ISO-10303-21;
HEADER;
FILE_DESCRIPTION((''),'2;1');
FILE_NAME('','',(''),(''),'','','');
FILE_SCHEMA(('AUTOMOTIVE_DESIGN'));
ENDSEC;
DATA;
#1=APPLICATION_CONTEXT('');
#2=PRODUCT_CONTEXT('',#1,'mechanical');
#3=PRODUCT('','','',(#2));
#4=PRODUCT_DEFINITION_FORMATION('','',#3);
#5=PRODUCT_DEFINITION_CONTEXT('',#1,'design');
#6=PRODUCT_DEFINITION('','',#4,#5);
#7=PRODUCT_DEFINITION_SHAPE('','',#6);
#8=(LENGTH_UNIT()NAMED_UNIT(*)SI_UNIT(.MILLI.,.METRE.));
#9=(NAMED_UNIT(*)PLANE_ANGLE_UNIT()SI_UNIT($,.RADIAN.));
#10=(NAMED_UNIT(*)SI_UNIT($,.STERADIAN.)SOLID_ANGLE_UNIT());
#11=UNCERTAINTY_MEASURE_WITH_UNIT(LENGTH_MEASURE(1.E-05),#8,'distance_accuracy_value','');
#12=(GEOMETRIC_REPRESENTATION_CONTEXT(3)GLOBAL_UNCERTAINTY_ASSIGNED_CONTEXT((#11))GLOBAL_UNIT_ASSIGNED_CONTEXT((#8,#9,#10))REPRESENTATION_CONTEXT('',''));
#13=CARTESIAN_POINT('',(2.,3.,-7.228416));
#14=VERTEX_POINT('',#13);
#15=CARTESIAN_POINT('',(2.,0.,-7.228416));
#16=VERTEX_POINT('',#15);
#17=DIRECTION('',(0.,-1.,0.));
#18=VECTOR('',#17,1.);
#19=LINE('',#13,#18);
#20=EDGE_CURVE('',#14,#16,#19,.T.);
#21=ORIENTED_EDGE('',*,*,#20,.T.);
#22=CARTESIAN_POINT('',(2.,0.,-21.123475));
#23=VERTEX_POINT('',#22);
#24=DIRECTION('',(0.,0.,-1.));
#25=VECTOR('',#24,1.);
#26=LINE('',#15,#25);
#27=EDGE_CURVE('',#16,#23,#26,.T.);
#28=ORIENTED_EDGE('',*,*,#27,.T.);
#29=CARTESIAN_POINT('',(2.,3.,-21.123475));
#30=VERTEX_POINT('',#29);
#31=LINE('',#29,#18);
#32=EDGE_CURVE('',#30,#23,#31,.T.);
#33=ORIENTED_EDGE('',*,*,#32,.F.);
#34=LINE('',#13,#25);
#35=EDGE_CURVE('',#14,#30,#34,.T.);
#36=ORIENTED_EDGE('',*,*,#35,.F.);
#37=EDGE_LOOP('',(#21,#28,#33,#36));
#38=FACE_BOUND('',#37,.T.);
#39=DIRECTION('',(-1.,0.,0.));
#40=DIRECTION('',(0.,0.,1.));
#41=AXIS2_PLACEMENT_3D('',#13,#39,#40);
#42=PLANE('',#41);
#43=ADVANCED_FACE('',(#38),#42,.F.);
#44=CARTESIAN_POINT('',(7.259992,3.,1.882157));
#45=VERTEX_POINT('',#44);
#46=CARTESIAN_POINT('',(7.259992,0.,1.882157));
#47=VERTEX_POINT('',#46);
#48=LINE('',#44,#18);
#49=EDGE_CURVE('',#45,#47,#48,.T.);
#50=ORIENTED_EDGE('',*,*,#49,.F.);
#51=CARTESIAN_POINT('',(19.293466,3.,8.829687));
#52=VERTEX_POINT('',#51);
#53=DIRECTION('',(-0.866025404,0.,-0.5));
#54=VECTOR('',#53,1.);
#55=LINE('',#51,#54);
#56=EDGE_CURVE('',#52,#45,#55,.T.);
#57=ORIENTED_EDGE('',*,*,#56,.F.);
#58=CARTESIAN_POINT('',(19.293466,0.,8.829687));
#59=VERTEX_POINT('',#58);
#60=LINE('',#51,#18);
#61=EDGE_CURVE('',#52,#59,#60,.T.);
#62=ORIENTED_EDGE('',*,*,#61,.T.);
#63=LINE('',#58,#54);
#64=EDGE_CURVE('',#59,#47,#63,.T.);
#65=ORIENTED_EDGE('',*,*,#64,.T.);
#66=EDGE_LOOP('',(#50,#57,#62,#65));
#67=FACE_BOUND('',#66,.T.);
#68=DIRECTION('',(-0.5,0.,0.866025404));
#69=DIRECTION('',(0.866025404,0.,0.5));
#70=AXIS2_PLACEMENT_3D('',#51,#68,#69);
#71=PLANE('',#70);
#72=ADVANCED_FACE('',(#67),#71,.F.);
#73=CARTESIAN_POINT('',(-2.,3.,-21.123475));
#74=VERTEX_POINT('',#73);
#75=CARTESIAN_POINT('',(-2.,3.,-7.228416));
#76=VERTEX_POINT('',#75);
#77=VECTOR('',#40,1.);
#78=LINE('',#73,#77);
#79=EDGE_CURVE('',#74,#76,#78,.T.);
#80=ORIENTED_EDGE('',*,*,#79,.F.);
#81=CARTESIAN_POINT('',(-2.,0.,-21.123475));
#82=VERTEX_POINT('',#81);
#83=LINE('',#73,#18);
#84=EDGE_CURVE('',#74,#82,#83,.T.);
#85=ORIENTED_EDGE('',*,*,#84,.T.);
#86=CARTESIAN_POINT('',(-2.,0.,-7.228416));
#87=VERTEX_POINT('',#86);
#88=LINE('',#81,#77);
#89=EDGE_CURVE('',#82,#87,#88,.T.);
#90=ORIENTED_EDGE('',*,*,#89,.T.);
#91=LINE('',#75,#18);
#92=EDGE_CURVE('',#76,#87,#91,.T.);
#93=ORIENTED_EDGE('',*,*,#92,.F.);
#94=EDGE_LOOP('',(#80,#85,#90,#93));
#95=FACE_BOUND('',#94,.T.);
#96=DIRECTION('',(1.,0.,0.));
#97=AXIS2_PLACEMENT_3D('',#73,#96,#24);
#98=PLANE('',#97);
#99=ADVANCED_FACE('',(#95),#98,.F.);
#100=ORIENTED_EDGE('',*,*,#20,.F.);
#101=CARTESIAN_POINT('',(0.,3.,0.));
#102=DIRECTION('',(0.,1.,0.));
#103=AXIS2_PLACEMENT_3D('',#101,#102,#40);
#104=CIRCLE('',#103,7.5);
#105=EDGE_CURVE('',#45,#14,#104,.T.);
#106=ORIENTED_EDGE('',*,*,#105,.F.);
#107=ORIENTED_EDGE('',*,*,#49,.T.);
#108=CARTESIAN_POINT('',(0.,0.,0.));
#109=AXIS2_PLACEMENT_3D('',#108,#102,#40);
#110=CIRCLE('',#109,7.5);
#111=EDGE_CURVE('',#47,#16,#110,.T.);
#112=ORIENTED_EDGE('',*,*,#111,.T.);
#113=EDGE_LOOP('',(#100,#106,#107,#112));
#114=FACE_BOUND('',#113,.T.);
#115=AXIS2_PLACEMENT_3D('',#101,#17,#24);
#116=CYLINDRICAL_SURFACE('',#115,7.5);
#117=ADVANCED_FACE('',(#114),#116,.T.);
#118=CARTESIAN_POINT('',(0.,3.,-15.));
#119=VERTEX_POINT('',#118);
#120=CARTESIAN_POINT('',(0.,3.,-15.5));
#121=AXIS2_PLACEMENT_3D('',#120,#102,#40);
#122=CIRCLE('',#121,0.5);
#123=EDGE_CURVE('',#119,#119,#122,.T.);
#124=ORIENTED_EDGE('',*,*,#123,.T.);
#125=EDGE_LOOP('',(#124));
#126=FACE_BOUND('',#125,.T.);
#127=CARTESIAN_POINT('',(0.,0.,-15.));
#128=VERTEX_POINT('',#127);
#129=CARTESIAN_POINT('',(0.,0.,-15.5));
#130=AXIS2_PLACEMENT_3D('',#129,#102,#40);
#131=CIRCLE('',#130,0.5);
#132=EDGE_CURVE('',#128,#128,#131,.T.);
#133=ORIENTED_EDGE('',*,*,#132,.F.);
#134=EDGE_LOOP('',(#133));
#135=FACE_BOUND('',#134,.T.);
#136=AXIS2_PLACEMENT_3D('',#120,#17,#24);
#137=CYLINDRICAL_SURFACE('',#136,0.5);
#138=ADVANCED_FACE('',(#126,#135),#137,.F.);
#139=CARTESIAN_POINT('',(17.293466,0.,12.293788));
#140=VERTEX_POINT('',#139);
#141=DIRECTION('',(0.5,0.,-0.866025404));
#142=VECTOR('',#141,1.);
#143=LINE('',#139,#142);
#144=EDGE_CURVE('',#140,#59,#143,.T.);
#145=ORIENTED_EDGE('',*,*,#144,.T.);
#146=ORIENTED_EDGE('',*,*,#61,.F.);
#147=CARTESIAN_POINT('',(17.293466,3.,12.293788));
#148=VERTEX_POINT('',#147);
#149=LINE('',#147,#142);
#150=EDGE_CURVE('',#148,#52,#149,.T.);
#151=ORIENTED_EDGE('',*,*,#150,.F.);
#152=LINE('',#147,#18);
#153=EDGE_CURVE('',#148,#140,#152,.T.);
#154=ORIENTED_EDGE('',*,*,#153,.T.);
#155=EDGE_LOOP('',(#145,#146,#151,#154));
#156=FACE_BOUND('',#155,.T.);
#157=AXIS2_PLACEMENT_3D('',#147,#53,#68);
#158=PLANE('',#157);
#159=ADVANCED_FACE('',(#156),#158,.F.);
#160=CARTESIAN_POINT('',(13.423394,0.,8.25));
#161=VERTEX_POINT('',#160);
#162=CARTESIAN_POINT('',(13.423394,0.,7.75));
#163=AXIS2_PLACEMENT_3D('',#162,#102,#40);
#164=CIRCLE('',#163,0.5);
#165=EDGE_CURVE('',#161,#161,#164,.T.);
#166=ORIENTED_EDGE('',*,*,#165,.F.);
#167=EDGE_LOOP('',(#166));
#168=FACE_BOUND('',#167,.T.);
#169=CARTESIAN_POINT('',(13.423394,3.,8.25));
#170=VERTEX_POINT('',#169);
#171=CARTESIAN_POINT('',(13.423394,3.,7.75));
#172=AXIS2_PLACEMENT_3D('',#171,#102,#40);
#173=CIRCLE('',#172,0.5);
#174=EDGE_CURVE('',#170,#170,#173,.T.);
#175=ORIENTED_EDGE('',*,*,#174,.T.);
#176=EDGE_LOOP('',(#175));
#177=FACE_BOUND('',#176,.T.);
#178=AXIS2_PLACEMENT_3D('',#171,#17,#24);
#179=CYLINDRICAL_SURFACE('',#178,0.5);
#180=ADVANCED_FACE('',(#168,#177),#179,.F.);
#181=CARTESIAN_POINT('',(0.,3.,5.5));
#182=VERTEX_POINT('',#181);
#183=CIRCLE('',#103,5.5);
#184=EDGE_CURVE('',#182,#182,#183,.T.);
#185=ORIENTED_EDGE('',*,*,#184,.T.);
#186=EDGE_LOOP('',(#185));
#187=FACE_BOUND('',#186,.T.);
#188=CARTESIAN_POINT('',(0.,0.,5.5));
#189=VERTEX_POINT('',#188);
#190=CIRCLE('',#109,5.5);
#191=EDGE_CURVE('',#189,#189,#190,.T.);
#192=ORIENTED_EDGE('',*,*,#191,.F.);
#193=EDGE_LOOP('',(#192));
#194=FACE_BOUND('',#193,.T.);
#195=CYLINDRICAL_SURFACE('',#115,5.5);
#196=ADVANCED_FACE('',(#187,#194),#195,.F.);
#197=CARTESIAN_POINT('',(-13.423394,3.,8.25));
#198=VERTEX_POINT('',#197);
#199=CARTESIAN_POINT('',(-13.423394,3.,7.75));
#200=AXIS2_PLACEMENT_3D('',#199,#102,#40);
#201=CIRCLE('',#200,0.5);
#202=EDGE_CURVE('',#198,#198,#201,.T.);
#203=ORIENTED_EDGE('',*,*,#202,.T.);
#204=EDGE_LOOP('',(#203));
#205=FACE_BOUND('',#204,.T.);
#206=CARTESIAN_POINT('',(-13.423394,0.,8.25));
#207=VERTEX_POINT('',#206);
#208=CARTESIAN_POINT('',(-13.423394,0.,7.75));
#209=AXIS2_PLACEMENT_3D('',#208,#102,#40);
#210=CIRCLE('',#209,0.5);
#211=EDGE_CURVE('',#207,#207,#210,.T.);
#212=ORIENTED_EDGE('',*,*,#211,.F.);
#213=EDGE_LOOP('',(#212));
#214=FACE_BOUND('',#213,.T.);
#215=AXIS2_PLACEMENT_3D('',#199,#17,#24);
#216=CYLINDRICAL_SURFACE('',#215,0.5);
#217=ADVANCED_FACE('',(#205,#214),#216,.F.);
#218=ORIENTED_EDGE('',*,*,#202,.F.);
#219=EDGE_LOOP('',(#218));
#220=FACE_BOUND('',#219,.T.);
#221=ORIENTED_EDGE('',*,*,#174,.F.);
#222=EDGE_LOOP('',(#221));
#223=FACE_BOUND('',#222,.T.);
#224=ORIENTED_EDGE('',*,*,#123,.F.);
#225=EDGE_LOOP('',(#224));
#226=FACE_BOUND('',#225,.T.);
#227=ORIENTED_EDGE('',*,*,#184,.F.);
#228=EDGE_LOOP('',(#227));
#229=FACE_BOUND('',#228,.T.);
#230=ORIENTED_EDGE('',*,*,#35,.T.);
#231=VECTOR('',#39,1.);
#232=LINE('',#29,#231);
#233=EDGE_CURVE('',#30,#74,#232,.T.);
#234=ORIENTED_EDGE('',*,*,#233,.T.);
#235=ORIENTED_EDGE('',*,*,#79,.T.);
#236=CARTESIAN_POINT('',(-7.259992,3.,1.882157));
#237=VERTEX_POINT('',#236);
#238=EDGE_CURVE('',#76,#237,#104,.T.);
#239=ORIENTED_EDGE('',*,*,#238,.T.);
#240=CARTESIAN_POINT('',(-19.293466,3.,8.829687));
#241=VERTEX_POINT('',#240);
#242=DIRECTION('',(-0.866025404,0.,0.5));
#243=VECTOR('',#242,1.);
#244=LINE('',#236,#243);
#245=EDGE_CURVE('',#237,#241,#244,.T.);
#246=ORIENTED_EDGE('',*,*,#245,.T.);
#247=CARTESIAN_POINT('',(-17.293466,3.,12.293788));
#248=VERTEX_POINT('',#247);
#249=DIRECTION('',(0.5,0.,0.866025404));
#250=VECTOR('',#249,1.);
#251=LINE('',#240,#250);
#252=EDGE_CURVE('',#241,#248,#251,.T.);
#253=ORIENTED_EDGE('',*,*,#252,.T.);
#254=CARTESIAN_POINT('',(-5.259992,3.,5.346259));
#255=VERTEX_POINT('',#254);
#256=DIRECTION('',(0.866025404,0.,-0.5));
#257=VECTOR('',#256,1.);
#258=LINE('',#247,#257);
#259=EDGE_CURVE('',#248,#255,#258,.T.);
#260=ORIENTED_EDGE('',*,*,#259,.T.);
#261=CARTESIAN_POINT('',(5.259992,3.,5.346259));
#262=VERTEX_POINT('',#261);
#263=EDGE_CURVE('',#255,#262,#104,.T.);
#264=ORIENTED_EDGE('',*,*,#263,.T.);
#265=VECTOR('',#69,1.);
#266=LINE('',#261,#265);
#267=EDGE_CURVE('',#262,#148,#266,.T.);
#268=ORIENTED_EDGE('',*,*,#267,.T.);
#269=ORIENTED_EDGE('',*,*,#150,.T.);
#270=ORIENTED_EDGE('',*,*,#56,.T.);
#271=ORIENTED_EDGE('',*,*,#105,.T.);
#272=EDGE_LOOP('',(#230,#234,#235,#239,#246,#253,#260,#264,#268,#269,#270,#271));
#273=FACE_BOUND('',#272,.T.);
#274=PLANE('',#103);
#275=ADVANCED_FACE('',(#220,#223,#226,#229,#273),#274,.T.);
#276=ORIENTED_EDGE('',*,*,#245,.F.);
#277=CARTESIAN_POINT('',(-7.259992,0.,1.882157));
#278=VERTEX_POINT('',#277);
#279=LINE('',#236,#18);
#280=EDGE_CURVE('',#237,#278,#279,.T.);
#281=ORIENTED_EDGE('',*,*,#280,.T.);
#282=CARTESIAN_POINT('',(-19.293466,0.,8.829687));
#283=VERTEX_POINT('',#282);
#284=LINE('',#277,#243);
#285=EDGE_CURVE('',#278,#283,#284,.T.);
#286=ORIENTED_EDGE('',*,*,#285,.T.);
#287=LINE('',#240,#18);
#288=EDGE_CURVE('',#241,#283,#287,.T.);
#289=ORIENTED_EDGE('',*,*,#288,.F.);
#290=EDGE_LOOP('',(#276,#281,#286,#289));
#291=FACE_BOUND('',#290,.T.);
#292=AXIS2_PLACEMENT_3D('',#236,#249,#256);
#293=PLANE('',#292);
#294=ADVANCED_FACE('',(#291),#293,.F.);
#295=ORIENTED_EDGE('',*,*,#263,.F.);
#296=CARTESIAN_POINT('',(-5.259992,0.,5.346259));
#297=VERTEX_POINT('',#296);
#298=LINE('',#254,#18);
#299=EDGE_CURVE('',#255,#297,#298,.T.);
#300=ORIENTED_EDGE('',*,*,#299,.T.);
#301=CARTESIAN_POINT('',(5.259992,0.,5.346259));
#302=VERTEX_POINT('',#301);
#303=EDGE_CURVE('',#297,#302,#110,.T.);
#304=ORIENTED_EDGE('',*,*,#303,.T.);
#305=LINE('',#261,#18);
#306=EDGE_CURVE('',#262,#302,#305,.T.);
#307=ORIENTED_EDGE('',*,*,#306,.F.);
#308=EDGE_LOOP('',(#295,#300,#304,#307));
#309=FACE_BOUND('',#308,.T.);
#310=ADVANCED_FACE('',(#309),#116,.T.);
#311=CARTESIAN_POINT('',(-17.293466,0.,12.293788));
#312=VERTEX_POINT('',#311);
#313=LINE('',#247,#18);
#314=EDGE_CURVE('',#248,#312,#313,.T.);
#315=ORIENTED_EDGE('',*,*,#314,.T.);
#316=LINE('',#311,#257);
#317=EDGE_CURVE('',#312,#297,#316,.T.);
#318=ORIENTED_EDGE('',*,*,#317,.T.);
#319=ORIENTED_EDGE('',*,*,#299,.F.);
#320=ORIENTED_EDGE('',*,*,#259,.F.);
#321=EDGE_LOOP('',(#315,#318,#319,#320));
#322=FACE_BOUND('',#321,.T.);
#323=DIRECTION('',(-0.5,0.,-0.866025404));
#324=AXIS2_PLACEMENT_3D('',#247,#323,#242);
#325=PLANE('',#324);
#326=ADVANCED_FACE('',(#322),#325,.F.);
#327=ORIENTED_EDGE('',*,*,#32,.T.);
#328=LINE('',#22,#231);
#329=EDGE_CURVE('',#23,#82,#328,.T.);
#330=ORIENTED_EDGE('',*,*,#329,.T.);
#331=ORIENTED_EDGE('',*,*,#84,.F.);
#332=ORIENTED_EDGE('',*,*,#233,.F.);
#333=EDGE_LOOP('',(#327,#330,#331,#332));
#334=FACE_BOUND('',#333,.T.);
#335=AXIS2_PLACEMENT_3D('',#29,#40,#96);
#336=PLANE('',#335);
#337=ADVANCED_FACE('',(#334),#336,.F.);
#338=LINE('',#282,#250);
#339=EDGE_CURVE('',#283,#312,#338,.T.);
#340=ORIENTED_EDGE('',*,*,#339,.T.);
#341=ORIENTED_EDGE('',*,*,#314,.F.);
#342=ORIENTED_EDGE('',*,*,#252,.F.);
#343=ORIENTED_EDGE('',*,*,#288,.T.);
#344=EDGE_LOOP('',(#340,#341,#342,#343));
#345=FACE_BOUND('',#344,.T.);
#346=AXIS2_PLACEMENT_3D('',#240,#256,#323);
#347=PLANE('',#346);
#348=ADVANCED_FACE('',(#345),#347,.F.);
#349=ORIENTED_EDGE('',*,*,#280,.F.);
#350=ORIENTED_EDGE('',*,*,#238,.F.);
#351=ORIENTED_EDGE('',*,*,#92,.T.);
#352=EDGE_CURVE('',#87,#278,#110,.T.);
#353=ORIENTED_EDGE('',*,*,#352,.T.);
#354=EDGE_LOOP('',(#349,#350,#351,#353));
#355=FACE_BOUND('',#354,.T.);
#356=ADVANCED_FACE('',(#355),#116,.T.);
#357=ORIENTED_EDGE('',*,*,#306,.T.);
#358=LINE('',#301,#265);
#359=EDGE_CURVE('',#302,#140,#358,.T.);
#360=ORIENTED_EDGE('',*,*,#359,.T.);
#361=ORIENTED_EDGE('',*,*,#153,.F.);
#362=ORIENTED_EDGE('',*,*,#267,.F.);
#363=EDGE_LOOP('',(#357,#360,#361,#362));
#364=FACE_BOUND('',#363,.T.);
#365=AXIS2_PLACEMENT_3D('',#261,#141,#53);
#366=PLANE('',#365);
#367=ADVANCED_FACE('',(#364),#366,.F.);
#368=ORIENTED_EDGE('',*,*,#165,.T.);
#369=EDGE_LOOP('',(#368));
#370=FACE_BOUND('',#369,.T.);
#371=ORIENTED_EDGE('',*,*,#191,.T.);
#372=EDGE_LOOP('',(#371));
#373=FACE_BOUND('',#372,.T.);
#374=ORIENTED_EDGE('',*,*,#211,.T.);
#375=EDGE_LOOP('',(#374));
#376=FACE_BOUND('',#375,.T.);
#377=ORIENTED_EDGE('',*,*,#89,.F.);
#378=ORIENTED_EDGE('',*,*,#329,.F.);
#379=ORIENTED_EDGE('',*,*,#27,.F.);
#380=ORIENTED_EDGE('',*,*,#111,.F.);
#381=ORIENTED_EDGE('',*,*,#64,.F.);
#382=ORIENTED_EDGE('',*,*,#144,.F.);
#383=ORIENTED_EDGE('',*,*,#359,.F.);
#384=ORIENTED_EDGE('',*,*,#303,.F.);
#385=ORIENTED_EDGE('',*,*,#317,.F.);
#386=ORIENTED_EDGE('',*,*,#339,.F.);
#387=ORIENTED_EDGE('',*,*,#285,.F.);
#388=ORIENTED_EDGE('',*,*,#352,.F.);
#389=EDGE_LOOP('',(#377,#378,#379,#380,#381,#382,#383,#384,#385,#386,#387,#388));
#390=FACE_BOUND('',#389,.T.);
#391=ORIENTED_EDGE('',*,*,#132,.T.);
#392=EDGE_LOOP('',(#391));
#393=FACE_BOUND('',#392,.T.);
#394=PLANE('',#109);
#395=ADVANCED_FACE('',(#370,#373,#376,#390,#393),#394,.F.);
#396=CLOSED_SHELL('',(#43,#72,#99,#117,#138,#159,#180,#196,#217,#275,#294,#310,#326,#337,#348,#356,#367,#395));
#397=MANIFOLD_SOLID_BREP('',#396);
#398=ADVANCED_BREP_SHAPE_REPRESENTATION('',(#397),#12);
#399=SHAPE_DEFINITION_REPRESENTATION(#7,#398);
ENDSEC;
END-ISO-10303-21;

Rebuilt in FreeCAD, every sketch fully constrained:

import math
import FreeCAD as App
import Part
import Sketcher
from FreeCAD import Vector
Q = App.Units.Quantity

doc = App.newDocument("Part")
body = doc.addObject("PartDesign::Body", "Body")

# Sketch on XZ plane
sketch1 = doc.addObject("Sketcher::SketchObject", "Sketch")
body.addObject(sketch1)
sketch1.AttachmentSupport = (doc.XZ_Plane, [""])
sketch1.MapMode = "FlatFace"
sketch1.addGeometry([
    Part.LineSegment(Vector(-19.293466, 8.829687, 0), Vector(-17.293466, 12.293788, 0)),  # 0
    Part.LineSegment(Vector(-17.293466, 12.293788, 0), Vector(-5.259992, 5.346259, 0)),  # 1
    Part.ArcOfCircle(Part.Circle(Vector(0, 0, 0), Vector(0, 0, 1), 7.5), math.radians(45.46601), math.radians(134.53399)),  # 2
    Part.LineSegment(Vector(5.259992, 5.346259, 0), Vector(17.293466, 12.293788, 0)),  # 3
    Part.LineSegment(Vector(17.293466, 12.293788, 0), Vector(19.293466, 8.829687, 0)),  # 4
    Part.LineSegment(Vector(19.293466, 8.829687, 0), Vector(7.259992, 1.882157, 0)),  # 5
    Part.ArcOfCircle(Part.Circle(Vector(0, 0, 0), Vector(0, 0, 1), 7.5), math.radians(-74.53399), math.radians(14.53399)),  # 6
    Part.LineSegment(Vector(2, -7.228416, 0), Vector(2, -21.123475, 0)),  # 7
    Part.LineSegment(Vector(2, -21.123475, 0), Vector(-2, -21.123475, 0)),  # 8
    Part.LineSegment(Vector(-2, -21.123475, 0), Vector(-2, -7.228416, 0)),  # 9
    Part.ArcOfCircle(Part.Circle(Vector(0, 0, 0), Vector(0, 0, 1), 7.5), math.radians(165.46601), math.radians(254.53399)),  # 10
    Part.LineSegment(Vector(-7.259992, 1.882157, 0), Vector(-19.293466, 8.829687, 0)),  # 11
    Part.Circle(Vector(-13.423394, 7.75, 0), Vector(0, 0, 1), 0.5),  # 12
    Part.Circle(Vector(13.423394, 7.75, 0), Vector(0, 0, 1), 0.5),  # 13
    Part.Circle(Vector(0, 0, 0), Vector(0, 0, 1), 5.5),  # 14
    Part.Circle(Vector(0, -15.5, 0), Vector(0, 0, 1), 0.5),  # 15
], False)
sketch1.addConstraint([
    Sketcher.Constraint("Coincident", 0, 2, 1, 1),
    Sketcher.Constraint("Coincident", 1, 2, 2, 2),
    Sketcher.Constraint("Coincident", 2, 1, 3, 1),
    Sketcher.Constraint("Coincident", 3, 2, 4, 1),
    Sketcher.Constraint("Coincident", 4, 2, 5, 1),
    Sketcher.Constraint("Coincident", 5, 2, 6, 2),
    Sketcher.Constraint("Coincident", 6, 1, 7, 1),
    Sketcher.Constraint("Coincident", 7, 2, 8, 1),
    Sketcher.Constraint("Coincident", 8, 2, 9, 1),
    Sketcher.Constraint("Coincident", 9, 2, 10, 2),
    Sketcher.Constraint("Coincident", 10, 1, 11, 1),
    Sketcher.Constraint("Coincident", 11, 2, 0, 1),
    Sketcher.Constraint("Vertical", 7),
    Sketcher.Constraint("Horizontal", 8),
    Sketcher.Constraint("Vertical", 9),
    Sketcher.Constraint("Coincident", 2, 3, -1, 1),
    Sketcher.Constraint("Coincident", 6, 3, -1, 1),
    Sketcher.Constraint("Coincident", 10, 3, -1, 1),
    Sketcher.Constraint("Coincident", 14, 3, -1, 1),
    Sketcher.Constraint("Equal", 2, 6),
    Sketcher.Constraint("Equal", 6, 10),
    Sketcher.Constraint("Equal", 12, 13),
    Sketcher.Constraint("Equal", 13, 15),
    Sketcher.Constraint("Symmetric", 12, 3, 13, 3, -2),
    Sketcher.Constraint("Symmetric", 0, 2, 3, 2, -2),
    Sketcher.Constraint("Symmetric", 4, 2, 11, 2, -2),
    Sketcher.Constraint("PointOnObject", 15, 3, -2),
    Sketcher.Constraint("Perpendicular", 0, 1),
    Sketcher.Constraint("Perpendicular", 3, 4),
    Sketcher.Constraint("Perpendicular", 4, 5),
    Sketcher.Constraint("Parallel", 1, 11),
    Sketcher.Constraint("Horizontal", 6, 1, 9, 2),
    Sketcher.Constraint("Equal", 3, 5),
    Sketcher.Constraint("Diameter", 12, Q("1 mm")),
    Sketcher.Constraint("Diameter", 14, Q("11 mm")),
    Sketcher.Constraint("Radius", 2, Q("7.5 mm")),
    Sketcher.Constraint("DistanceX", 8, 2, 8, 1, Q("4 mm")),
    Sketcher.Constraint("Angle", 0, Q("60 deg")),
    Sketcher.Constraint("Distance", 0, Q("4 mm")),
    Sketcher.Constraint("DistanceY", 15, 3, -1, 1, Q("15.5 mm")),
    Sketcher.Constraint("DistanceY", -1, 1, 12, 3, Q("7.75 mm")),
    Sketcher.Constraint("DistanceY", 7, 2, 7, 1, Q("13.895059 mm")),
    Sketcher.Constraint("DistanceX", 12, 3, 1, 2, Q("8.163402 mm")),
    Sketcher.Constraint("Distance", 1, Q("13.895059 mm")),
])
pad1 = doc.addObject("PartDesign::Pad", "Pad")
body.addObject(pad1)
pad1.Profile = sketch1
pad1.Length = 3
pad1.Reversed = True

doc.recompute()
